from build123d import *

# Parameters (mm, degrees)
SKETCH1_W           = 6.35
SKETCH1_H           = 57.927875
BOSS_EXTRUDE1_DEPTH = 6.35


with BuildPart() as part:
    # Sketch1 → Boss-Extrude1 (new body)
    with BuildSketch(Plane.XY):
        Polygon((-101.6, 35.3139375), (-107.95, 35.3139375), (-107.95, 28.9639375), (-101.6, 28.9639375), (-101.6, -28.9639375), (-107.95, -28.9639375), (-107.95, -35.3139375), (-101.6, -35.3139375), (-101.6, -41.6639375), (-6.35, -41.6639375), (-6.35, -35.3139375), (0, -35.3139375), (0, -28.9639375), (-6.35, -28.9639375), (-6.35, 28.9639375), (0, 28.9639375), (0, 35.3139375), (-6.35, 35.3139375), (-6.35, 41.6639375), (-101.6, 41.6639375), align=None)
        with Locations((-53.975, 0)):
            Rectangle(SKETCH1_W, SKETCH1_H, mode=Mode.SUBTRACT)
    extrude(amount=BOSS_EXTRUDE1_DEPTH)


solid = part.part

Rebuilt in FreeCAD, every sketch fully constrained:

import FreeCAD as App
import Part
import Sketcher

V = App.Vector
Q = App.Units.Quantity


def add_polygon(sketch, points):
    """Adds a closed chain of lines whose ends are joined by coincident constraints."""
    first, n = sketch.GeometryCount, len(points)
    for a, b in zip(points, points[1:] + points[:1]):
        sketch.addGeometry(Part.LineSegment(App.Vector(*a, 0), App.Vector(*b, 0)), False)
    for i in range(n):
        sketch.addConstraint(Sketcher.Constraint("Coincident", first + i, 2, first + (i + 1) % n, 1))

doc = App.newDocument("Part")
body = doc.addObject("PartDesign::Body", "Body")

sketch1 = body.newObject("Sketcher::SketchObject", "Sketch")
sketch1.AttachmentSupport = (doc.getObject("XY_Plane"), [""])
sketch1.MapMode = "FlatFace"
add_polygon(sketch1, [(-102, 35), (-108, 35), (-108, 29), (-102, 29), (-102, -29), (-108, -29), (-108, -35), (-102, -35), (-102, -42), (-6, -42), (-6, -35), (0, -35), (0, -29), (-6, -29), (-6, 29), (0, 29), (0, 35), (-6, 35), (-6, 42), (-102, 42)])
add_polygon(sketch1, [(-51, -29), (-57, -29), (-57, 29), (-51, 29)])
sketch1.addConstraint(Sketcher.Constraint("Horizontal", 0))
sketch1.addConstraint(Sketcher.Constraint("Vertical", 1))
sketch1.addConstraint(Sketcher.Constraint("Horizontal", 2))
sketch1.addConstraint(Sketcher.Constraint("Vertical", 3))
sketch1.addConstraint(Sketcher.Constraint("Horizontal", 4))
sketch1.addConstraint(Sketcher.Constraint("Vertical", 5))
sketch1.addConstraint(Sketcher.Constraint("Horizontal", 6))
sketch1.addConstraint(Sketcher.Constraint("Vertical", 7))
sketch1.addConstraint(Sketcher.Constraint("Horizontal", 8))
sketch1.addConstraint(Sketcher.Constraint("Vertical", 9))
sketch1.addConstraint(Sketcher.Constraint("Horizontal", 10))
sketch1.addConstraint(Sketcher.Constraint("Vertical", 11))
sketch1.addConstraint(Sketcher.Constraint("Horizontal", 12))
sketch1.addConstraint(Sketcher.Constraint("Vertical", 13))
sketch1.addConstraint(Sketcher.Constraint("Horizontal", 14))
sketch1.addConstraint(Sketcher.Constraint("Vertical", 15))
sketch1.addConstraint(Sketcher.Constraint("Horizontal", 16))
sketch1.addConstraint(Sketcher.Constraint("Vertical", 17))
sketch1.addConstraint(Sketcher.Constraint("Horizontal", 18))
sketch1.addConstraint(Sketcher.Constraint("Vertical", 19))
sketch1.addConstraint(Sketcher.Constraint("Horizontal", 20))
sketch1.addConstraint(Sketcher.Constraint("Vertical", 21))
sketch1.addConstraint(Sketcher.Constraint("Horizontal", 22))
sketch1.addConstraint(Sketcher.Constraint("Vertical", 23))
sketch1.addConstraint(Sketcher.Constraint("Symmetric", 11, 2, 14, 2, -1, 1))
sketch1.addConstraint(Sketcher.Constraint("Symmetric", 1, 2, 4, 2, -1))
sketch1.addConstraint(Sketcher.Constraint("Symmetric", 10, 2, 15, 2, -1))
sketch1.addConstraint(Sketcher.Constraint("Symmetric", 8, 2, 17, 2, -1))
sketch1.addConstraint(Sketcher.Constraint("Symmetric", 6, 2, 19, 2, -1))
sketch1.addConstraint(Sketcher.Constraint("Horizontal", 6, 2, 9, 2))
sketch1.addConstraint(Sketcher.Constraint("Horizontal", 4, 2, 11, 2))
sketch1.addConstraint(Sketcher.Constraint("Horizontal", 12, 2, 20, 2))
sketch1.addConstraint(Sketcher.Constraint("Horizontal", 14, 2, 21, 2))
sketch1.addConstraint(Sketcher.Constraint("Vertical", 3, 2, 6, 2))
sketch1.addConstraint(Sketcher.Constraint("Vertical", 9, 2, 12, 2))
sketch1.addConstraint(Sketcher.Constraint("Equal", 6, 10))
sketch1.addConstraint(Sketcher.Constraint("Equal", 16, 20))
sketch1.addConstraint(Sketcher.Constraint("Equal", 22, 1))
sketch1.addConstraint(Sketcher.Constraint("Equal", 5, 7))
sketch1.addConstraint(Sketcher.Constraint("DistanceX", 2, 2, -1, 1, Q("4 in")))
sketch1.addConstraint(Sketcher.Constraint("DistanceX", 22, 2, -1, 1, Q("2 in")))
sketch1.addConstraint(Sketcher.Constraint("DistanceX", 0, 2, 0, 1, Q("0.25 in")))
sketch1.addConstraint(Sketcher.Constraint("DistanceY", 3, 2, 3, 1, 57.927875))
pad1 = body.newObject("PartDesign::Pad", "Pad")
pad1.Profile = sketch1
pad1.Length = Q("0.25 in")

doc.recompute()
